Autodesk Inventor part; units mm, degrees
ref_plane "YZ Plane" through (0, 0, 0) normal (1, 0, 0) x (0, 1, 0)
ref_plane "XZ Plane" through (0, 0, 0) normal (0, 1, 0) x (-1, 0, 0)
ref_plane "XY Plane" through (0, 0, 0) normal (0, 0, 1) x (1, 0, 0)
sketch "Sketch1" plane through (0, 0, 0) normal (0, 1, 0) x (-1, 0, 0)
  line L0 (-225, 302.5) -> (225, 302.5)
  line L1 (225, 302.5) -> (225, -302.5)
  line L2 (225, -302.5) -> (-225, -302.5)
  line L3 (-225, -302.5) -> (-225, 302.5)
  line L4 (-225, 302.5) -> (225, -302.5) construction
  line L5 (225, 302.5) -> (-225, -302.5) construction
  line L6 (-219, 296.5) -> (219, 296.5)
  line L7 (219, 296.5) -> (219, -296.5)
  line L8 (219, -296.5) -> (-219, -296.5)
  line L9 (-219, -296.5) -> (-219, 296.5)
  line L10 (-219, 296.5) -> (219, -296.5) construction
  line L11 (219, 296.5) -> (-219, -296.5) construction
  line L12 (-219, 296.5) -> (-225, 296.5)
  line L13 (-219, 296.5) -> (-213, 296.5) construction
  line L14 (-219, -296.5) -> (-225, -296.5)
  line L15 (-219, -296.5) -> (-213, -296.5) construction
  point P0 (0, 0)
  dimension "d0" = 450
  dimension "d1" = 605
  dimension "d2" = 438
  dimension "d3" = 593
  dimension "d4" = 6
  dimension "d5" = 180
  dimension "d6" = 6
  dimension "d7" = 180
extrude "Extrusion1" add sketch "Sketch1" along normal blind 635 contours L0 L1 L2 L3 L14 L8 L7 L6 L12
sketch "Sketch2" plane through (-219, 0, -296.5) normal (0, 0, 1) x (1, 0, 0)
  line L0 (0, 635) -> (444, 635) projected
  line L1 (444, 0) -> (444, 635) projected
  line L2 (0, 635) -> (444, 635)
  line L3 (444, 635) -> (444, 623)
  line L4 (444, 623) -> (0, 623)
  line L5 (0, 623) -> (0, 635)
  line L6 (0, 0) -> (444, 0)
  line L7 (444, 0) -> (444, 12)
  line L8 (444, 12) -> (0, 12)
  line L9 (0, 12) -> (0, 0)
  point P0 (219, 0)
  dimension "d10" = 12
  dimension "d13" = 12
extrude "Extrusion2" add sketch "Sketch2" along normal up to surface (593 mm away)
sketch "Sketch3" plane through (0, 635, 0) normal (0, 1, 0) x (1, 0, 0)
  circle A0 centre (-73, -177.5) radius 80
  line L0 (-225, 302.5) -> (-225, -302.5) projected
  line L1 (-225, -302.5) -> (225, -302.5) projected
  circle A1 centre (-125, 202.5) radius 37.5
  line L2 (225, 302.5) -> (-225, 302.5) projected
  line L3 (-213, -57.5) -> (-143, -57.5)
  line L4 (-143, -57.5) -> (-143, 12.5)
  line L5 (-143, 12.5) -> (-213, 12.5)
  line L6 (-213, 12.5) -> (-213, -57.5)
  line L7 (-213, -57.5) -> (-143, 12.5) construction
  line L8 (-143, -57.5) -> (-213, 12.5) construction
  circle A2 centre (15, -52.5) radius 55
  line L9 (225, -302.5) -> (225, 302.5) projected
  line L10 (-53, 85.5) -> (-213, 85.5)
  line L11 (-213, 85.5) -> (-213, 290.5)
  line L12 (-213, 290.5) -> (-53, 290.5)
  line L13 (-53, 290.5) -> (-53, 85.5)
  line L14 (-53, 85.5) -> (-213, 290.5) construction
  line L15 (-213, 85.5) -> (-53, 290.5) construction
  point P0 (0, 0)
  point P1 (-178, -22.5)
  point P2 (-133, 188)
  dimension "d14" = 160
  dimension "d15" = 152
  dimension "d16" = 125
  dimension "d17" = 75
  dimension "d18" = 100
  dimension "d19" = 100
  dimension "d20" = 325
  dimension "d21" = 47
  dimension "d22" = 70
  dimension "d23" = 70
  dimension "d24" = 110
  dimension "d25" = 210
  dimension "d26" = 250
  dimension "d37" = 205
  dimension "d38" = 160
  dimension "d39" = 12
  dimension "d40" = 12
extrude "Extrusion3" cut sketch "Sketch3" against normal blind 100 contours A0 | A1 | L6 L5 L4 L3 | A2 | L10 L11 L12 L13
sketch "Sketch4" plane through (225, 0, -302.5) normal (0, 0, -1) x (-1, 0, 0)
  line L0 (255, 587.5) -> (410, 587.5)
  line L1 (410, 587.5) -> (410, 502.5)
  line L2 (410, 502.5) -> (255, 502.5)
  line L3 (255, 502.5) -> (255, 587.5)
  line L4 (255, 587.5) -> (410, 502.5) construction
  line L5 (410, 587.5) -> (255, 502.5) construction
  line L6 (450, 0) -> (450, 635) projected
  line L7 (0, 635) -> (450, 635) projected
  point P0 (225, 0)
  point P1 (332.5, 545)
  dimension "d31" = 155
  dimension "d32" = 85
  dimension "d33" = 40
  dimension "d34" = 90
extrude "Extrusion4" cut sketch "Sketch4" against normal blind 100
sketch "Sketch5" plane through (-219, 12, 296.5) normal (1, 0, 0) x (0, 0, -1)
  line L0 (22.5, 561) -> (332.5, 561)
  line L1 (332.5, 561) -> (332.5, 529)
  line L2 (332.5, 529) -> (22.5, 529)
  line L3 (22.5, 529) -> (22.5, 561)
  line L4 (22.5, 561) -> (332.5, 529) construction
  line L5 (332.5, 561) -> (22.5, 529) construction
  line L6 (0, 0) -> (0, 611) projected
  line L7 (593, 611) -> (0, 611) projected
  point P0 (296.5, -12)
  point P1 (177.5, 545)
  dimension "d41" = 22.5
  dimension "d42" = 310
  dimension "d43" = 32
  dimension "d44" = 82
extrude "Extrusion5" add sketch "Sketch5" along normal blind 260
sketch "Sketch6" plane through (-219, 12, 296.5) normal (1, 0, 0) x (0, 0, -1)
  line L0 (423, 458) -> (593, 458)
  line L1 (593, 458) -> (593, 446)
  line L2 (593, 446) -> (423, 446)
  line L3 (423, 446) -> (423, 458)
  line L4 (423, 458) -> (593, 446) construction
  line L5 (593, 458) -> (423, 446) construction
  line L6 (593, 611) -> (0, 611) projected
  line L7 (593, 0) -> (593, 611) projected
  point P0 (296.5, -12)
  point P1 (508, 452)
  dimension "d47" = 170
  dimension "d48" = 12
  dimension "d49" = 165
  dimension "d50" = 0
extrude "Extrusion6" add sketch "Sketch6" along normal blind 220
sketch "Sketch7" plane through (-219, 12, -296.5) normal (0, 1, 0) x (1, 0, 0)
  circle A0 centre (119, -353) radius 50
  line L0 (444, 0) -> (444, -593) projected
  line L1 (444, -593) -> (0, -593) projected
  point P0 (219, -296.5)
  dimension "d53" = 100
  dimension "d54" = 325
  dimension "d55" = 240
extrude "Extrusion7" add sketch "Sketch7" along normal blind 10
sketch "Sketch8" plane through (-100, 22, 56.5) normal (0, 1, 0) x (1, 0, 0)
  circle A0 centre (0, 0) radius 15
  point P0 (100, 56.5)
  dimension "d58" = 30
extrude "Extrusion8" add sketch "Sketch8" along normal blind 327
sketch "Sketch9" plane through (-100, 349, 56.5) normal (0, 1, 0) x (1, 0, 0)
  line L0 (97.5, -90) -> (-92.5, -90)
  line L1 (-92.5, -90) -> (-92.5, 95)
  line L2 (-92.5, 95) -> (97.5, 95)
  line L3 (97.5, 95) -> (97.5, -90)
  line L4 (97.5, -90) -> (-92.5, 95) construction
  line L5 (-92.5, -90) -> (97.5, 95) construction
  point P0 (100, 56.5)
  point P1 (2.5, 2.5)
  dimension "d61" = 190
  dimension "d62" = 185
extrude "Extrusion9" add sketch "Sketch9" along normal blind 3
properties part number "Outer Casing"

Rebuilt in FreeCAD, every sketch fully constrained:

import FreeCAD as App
import Part
import Sketcher

V = App.Vector
Q = App.Units.Quantity

doc = App.newDocument("Part")
body = doc.addObject("PartDesign::Body", "Body")

# Sketch on XZ plane
sketch1 = body.newObject("Sketcher::SketchObject", "Sketch")
sketch1.AttachmentSupport = (doc.getObject("XZ_Plane"), [""])
sketch1.MapMode = "FlatFace"
sketch1.addGeometry([
    Part.LineSegment(V(-225, 302, 0), V(225, 302, 0)),  # 0
    Part.LineSegment(V(225, 302, 0), V(225, 296, 0)),  # 1
    Part.LineSegment(V(225, 296, 0), V(-219, 296, 0)),  # 2
    Part.LineSegment(V(-219, 296, 0), V(-219, -296, 0)),  # 3
    Part.LineSegment(V(-219, -296, 0), V(225, -296, 0)),  # 4
    Part.LineSegment(V(225, -296, 0), V(225, -302, 0)),  # 5
    Part.LineSegment(V(225, -302, 0), V(-225, -302, 0)),  # 6
    Part.LineSegment(V(-225, -302, 0), V(-225, 302, 0)),  # 7
], False)
sketch1.addConstraint([
    Sketcher.Constraint("Coincident", 0, 2, 1, 1),
    Sketcher.Constraint("Coincident", 1, 2, 2, 1),
    Sketcher.Constraint("Coincident", 2, 2, 3, 1),
    Sketcher.Constraint("Coincident", 3, 2, 4, 1),
    Sketcher.Constraint("Coincident", 4, 2, 5, 1),
    Sketcher.Constraint("Coincident", 5, 2, 6, 1),
    Sketcher.Constraint("Coincident", 6, 2, 7, 1),
    Sketcher.Constraint("Coincident", 7, 2, 0, 1),
    Sketcher.Constraint("Horizontal", 0),
    Sketcher.Constraint("Vertical", 1),
    Sketcher.Constraint("Horizontal", 2),
    Sketcher.Constraint("Vertical", 3),
    Sketcher.Constraint("Horizontal", 4),
    Sketcher.Constraint("Vertical", 5),
    Sketcher.Constraint("Horizontal", 6),
    Sketcher.Constraint("Vertical", 7),
    Sketcher.Constraint("Symmetric", 0, 2, 6, 2, -1, 1),
    Sketcher.Constraint("Symmetric", 1, 2, 4, 2, -1),
    Sketcher.Constraint("DistanceX", 0, 1, 0, 2, Q("450 mm")),
    Sketcher.Constraint("DistanceY", 1, 2, 1, 1, Q("6 mm")),
    Sketcher.Constraint("DistanceY", 3, 2, 3, 1, Q("593 mm")),
    Sketcher.Constraint("DistanceX", 6, 2, 3, 2, Q("6 mm")),
])
pad1 = body.newObject("PartDesign::Pad", "Pad")
pad1.Profile = sketch1
pad1.Length = 635
pad1.Reversed = True

# Sketch on XY plane
sketch2 = body.newObject("Sketcher::SketchObject", "Sketch001")
sketch2.AttachmentSupport = (doc.getObject("XY_Plane"), [""])
sketch2.MapMode = "FlatFace"
sketch2.AttachmentOffset = App.Placement(V(0, 0, -296.5), App.Rotation())
sketch2.addGeometry([
    Part.LineSegment(V(225, 0, 0), V(225, 12, 0)),  # 0
    Part.LineSegment(V(225, 12, 0), V(-219, 12, 0)),  # 1
    Part.LineSegment(V(-219, 12, 0), V(-219, 0, 0)),  # 2
    Part.LineSegment(V(-219, 0, 0), V(225, 0, 0)),  # 3
    Part.LineSegment(V(225, 635, 0), V(-219, 635, 0)),  # 4
    Part.LineSegment(V(-219, 635, 0), V(-219, 623, 0)),  # 5
    Part.LineSegment(V(-219, 623, 0), V(225, 623, 0)),  # 6
    Part.LineSegment(V(225, 623, 0), V(225, 635, 0)),  # 7
], False)
sketch2.addConstraint([
    Sketcher.Constraint("Coincident", 0, 2, 1, 1),
    Sketcher.Constraint("Coincident", 1, 2, 2, 1),
    Sketcher.Constraint("Coincident", 2, 2, 3, 1),
    Sketcher.Constraint("Coincident", 3, 2, 0, 1),
    Sketcher.Constraint("Coincident", 4, 2, 5, 1),
    Sketcher.Constraint("Coincident", 5, 2, 6, 1),
    Sketcher.Constraint("Coincident", 6, 2, 7, 1),
    Sketcher.Constraint("Coincident", 7, 2, 4, 1),
    Sketcher.Constraint("Vertical", 0),
    Sketcher.Constraint("Horizontal", 1),
    Sketcher.Constraint("Vertical", 2),
    Sketcher.Constraint("Horizontal", 3),
    Sketcher.Constraint("Horizontal", 4),
    Sketcher.Constraint("Vertical", 5),
    Sketcher.Constraint("Horizontal", 6),
    Sketcher.Constraint("Vertical", 7),
    Sketcher.Constraint("PointOnObject", 2, 2, -1),
    Sketcher.Constraint("Vertical", 2, 2, 4, 2),
    Sketcher.Constraint("Vertical", 3, 2, 6, 2),
    Sketcher.Constraint("Equal", 2, 5),
    Sketcher.Constraint("DistanceY", 0, 1, 0, 2, Q("12 mm")),
    Sketcher.Constraint("DistanceX", 1, 2, 1, 1, Q("444 mm")),
    Sketcher.Constraint("DistanceX", -1, 1, 0, 2, Q("225 mm")),
    Sketcher.Constraint("DistanceY", -1, 1, 4, 2, Q("635 mm")),
])
pad2 = body.newObject("PartDesign::Pad", "Pad001")
pad2.Profile = sketch2
pad2.Length = 593

# Sketch on XZ plane
sketch3 = body.newObject("Sketcher::SketchObject", "Sketch002")
sketch3.AttachmentSupport = (doc.getObject("XZ_Plane"), [""])
sketch3.MapMode = "FlatFace"
sketch3.AttachmentOffset = App.Placement(V(0, 0, -635), App.Rotation())
sketch3.addGeometry([
    Part.Circle(V(-73, 178, 0), V(0, 0, 1), 80),  # 0
    Part.LineSegment(V(-213, -86, 0), V(-53, -86, 0)),  # 1
    Part.LineSegment(V(-53, -86, 0), V(-53, -290, 0)),  # 2
    Part.LineSegment(V(-53, -290, 0), V(-213, -290, 0)),  # 3
    Part.LineSegment(V(-213, -290, 0), V(-213, -86, 0)),  # 4
    Part.LineSegment(V(-213, -12, 0), V(-213, 58, 0)),  # 5
    Part.LineSegment(V(-213, 58, 0), V(-143, 58, 0)),  # 6
    Part.LineSegment(V(-143, 58, 0), V(-143, -12, 0)),  # 7
    Part.LineSegment(V(-143, -12, 0), V(-213, -12, 0)),  # 8
    Part.Circle(V(15, 52, 0), V(0, 0, 1), 55),  # 9
], False)
sketch3.addConstraint([
    Sketcher.Constraint("Coincident", 1, 2, 2, 1),
    Sketcher.Constraint("Coincident", 2, 2, 3, 1),
    Sketcher.Constraint("Coincident", 3, 2, 4, 1),
    Sketcher.Constraint("Coincident", 4, 2, 1, 1),
    Sketcher.Constraint("Coincident", 5, 2, 6, 1),
    Sketcher.Constraint("Coincident", 6, 2, 7, 1),
    Sketcher.Constraint("Coincident", 7, 2, 8, 1),
    Sketcher.Constraint("Coincident", 8, 2, 5, 1),
    Sketcher.Constraint("Horizontal", 1),
    Sketcher.Constraint("Vertical", 2),
    Sketcher.Constraint("Horizontal", 3),
    Sketcher.Constraint("Vertical", 4),
    Sketcher.Constraint("Vertical", 5),
    Sketcher.Constraint("Horizontal", 6),
    Sketcher.Constraint("Vertical", 7),
    Sketcher.Constraint("Horizontal", 8),
    Sketcher.Constraint("Vertical", 4, 2, 5, 2),
    Sketcher.Constraint("Equal", 8, 5),
    Sketcher.Constraint("Diameter", 0, Q("160 mm")),
    Sketcher.Constraint("Diameter", 9, Q("110 mm")),
    Sketcher.Constraint("DistanceX", 1, 1, 1, 2, Q("160 mm")),
    Sketcher.Constraint("DistanceX", 6, 1, 6, 2, Q("70 mm")),
    Sketcher.Constraint("DistanceY", 2, 2, 2, 1, Q("205 mm")),
    Sketcher.Constraint("DistanceY", 9, 3, 0, 3, Q("125 mm")),
    Sketcher.Constraint("DistanceX", 6, 2, 0, 3, Q("70 mm")),
    Sketcher.Constraint("DistanceX", 0, 3, -1, 1, Q("73 mm")),
    Sketcher.Constraint("DistanceX", -1, 1, 9, 3, Q("15 mm")),
    Sketcher.Constraint("DistanceY", 1, 2, 9, 3, Q("138 mm")),
    Sketcher.Constraint("DistanceY", 4, 2, 5, 2, Q("143 mm")),
    Sketcher.Constraint("DistanceY", -1, 1, 0, 3, Q("177.5 mm")),
])
pocket1 = body.newObject("PartDesign::Pocket", "Pocket")
pocket1.Profile = sketch3
pocket1.Length = 100
pocket1.Reversed = True

# Sketch on XY plane
sketch4 = body.newObject("Sketcher::SketchObject", "Sketch003")
sketch4.AttachmentSupport = (doc.getObject("XY_Plane"), [""])
sketch4.MapMode = "FlatFace"
sketch4.AttachmentOffset = App.Placement(V(0, 0, -302.5), App.Rotation())
sketch4.addGeometry([
    Part.LineSegment(V(-185, 588, 0), V(-30, 588, 0)),
    Part.LineSegment(V(-30, 588, 0), V(-30, 502, 0)),
    Part.LineSegment(V(-30, 502, 0), V(-185, 502, 0)),
    Part.LineSegment(V(-185, 502, 0), V(-185, 588, 0)),
], False)
sketch4.addConstraint([
    Sketcher.Constraint("Coincident", 0, 2, 1, 1),
    Sketcher.Constraint("Coincident", 1, 2, 2, 1),
    Sketcher.Constraint("Coincident", 2, 2, 3, 1),
    Sketcher.Constraint("Coincident", 3, 2, 0, 1),
    Sketcher.Constraint("Horizontal", 0),
    Sketcher.Constraint("Vertical", 1),
    Sketcher.Constraint("Horizontal", 2),
    Sketcher.Constraint("Vertical", 3),
    Sketcher.Constraint("DistanceX", 0, 1, 0, 2, Q("155 mm")),
    Sketcher.Constraint("DistanceY", 1, 2, 1, 1, Q("85 mm")),
    Sketcher.Constraint("DistanceX", 0, 2, -1, 1, Q("30 mm")),
    Sketcher.Constraint("DistanceY", -1, 1, 0, 2, Q("587.5 mm")),
])
pocket2 = body.newObject("PartDesign::Pocket", "Pocket001")
pocket2.Profile = sketch4
pocket2.Length = 100
pocket2.Reversed = True

# Sketch on YZ plane
sketch5 = body.newObject("Sketcher::SketchObject", "Sketch004")
sketch5.AttachmentSupport = (doc.getObject("YZ_Plane"), [""])
sketch5.MapMode = "FlatFace"
sketch5.AttachmentOffset = App.Placement(V(0, 0, -219), App.Rotation())
sketch5.addGeometry([
    Part.LineSegment(V(573, -36, 0), V(573, 274, 0)),
    Part.LineSegment(V(573, 274, 0), V(541, 274, 0)),
    Part.LineSegment(V(541, 274, 0), V(541, -36, 0)),
    Part.LineSegment(V(541, -36, 0), V(573, -36, 0)),
], False)
sketch5.addConstraint([
    Sketcher.Constraint("Coincident", 0, 2, 1, 1),
    Sketcher.Constraint("Coincident", 1, 2, 2, 1),
    Sketcher.Constraint("Coincident", 2, 2, 3, 1),
    Sketcher.Constraint("Coincident", 3, 2, 0, 1),
    Sketcher.Constraint("Vertical", 0),
    Sketcher.Constraint("Horizontal", 1),
    Sketcher.Constraint("Vertical", 2),
    Sketcher.Constraint("Horizontal", 3),
    Sketcher.Constraint("DistanceX", 1, 2, 1, 1, Q("32 mm")),
    Sketcher.Constraint("DistanceY", 0, 1, 0, 2, Q("310 mm")),
    Sketcher.Constraint("DistanceX", -1, 1, 0, 2, Q("573 mm")),
    Sketcher.Constraint("DistanceY", -1, 1, 0, 2, Q("274 mm")),
])
pad3 = body.newObject("PartDesign::Pad", "Pad002")
pad3.Profile = sketch5
pad3.Length = 260

# Sketch on YZ plane
sketch6 = body.newObject("Sketcher::SketchObject", "Sketch005")
sketch6.AttachmentSupport = (doc.getObject("YZ_Plane"), [""])
sketch6.MapMode = "FlatFace"
sketch6.AttachmentOffset = App.Placement(V(0, 0, -219), App.Rotation())
sketch6.addGeometry([
    Part.LineSegment(V(470, -296, 0), V(470, -126, 0)),
    Part.LineSegment(V(470, -126, 0), V(458, -126, 0)),
    Part.LineSegment(V(458, -126, 0), V(458, -296, 0)),
    Part.LineSegment(V(458, -296, 0), V(470, -296, 0)),
], False)
sketch6.addConstraint([
    Sketcher.Constraint("Coincident", 0, 2, 1, 1),
    Sketcher.Constraint("Coincident", 1, 2, 2, 1),
    Sketcher.Constraint("Coincident", 2, 2, 3, 1),
    Sketcher.Constraint("Coincident", 3, 2, 0, 1),
    Sketcher.Constraint("Vertical", 0),
    Sketcher.Constraint("Horizontal", 1),
    Sketcher.Constraint("Vertical", 2),
    Sketcher.Constraint("Horizontal", 3),
    Sketcher.Constraint("DistanceX", 1, 2, 1, 1, Q("12 mm")),
    Sketcher.Constraint("DistanceY", 0, 1, 0, 2, Q("170 mm")),
    Sketcher.Constraint("DistanceX", -1, 1, 0, 2, Q("470 mm")),
    Sketcher.Constraint("DistanceY", 0, 2, -1, 1, Q("126.5 mm")),
])
pad4 = body.newObject("PartDesign::Pad", "Pad003")
pad4.Profile = sketch6
pad4.Length = 220

# Sketch on XZ plane
sketch7 = body.newObject("Sketcher::SketchObject", "Sketch006")
sketch7.AttachmentSupport = (doc.getObject("XZ_Plane"), [""])
sketch7.MapMode = "FlatFace"
sketch7.AttachmentOffset = App.Placement(V(0, 0, -12), App.Rotation())
sketch7.addGeometry(Part.Circle(V(-100, 56, 0), V(0, 0, 1), 50), False)
sketch7.addConstraint([
    Sketcher.Constraint("Diameter", 0, Q("100 mm")),
    Sketcher.Constraint("DistanceX", 0, 3, -1, 1, Q("100 mm")),
    Sketcher.Constraint("DistanceY", -1, 1, 0, 3, Q("56.5 mm")),
])
pad5 = body.newObject("PartDesign::Pad", "Pad004")
pad5.Profile = sketch7
pad5.Length = 10
pad5.Reversed = True

# Sketch on XZ plane
sketch8 = body.newObject("Sketcher::SketchObject", "Sketch007")
sketch8.AttachmentSupport = (doc.getObject("XZ_Plane"), [""])
sketch8.MapMode = "FlatFace"
sketch8.AttachmentOffset = App.Placement(V(0, 0, -22), App.Rotation())
sketch8.addGeometry(Part.Circle(V(-100, 56, 0), V(0, 0, 1), 15), False)
sketch8.addConstraint([
    Sketcher.Constraint("Diameter", 0, Q("30 mm")),
    Sketcher.Constraint("DistanceX", 0, 3, -1, 1, Q("100 mm")),
    Sketcher.Constraint("DistanceY", -1, 1, 0, 3, Q("56.5 mm")),
])
pad6 = body.newObject("PartDesign::Pad", "Pad005")
pad6.Profile = sketch8
pad6.Length = 327
pad6.Reversed = True

# Sketch on XZ plane
sketch9 = body.newObject("Sketcher::SketchObject", "Sketch008")
sketch9.AttachmentSupport = (doc.getObject("XZ_Plane"), [""])
sketch9.MapMode = "FlatFace"
sketch9.AttachmentOffset = App.Placement(V(0, 0, -349), App.Rotation())
sketch9.addGeometry([
    Part.LineSegment(V(-192, 146, 0), V(-2, 146, 0)),
    Part.LineSegment(V(-2, 146, 0), V(-2, -38, 0)),
    Part.LineSegment(V(-2, -38, 0), V(-192, -38, 0)),
    Part.LineSegment(V(-192, -38, 0), V(-192, 146, 0)),
], False)
sketch9.addConstraint([
    Sketcher.Constraint("Coincident", 0, 2, 1, 1),
    Sketcher.Constraint("Coincident", 1, 2, 2, 1),
    Sketcher.Constraint("Coincident", 2, 2, 3, 1),
    Sketcher.Constraint("Coincident", 3, 2, 0, 1),
    Sketcher.Constraint("Horizontal", 0),
    Sketcher.Constraint("Vertical", 1),
    Sketcher.Constraint("Horizontal", 2),
    Sketcher.Constraint("Vertical", 3),
    Sketcher.Constraint("DistanceX", 0, 1, 0, 2, Q("190 mm")),
    Sketcher.Constraint("DistanceY", 1, 2, 1, 1, Q("185 mm")),
    Sketcher.Constraint("DistanceX", 0, 2, -1, 1, Q("2.5 mm")),
    Sketcher.Constraint("DistanceY", -1, 1, 0, 2, Q("146.5 mm")),
])
pad7 = body.newObject("PartDesign::Pad", "Pad006")
pad7.Profile = sketch9
pad7.Length = 3
pad7.Reversed = True

doc.recompute()
